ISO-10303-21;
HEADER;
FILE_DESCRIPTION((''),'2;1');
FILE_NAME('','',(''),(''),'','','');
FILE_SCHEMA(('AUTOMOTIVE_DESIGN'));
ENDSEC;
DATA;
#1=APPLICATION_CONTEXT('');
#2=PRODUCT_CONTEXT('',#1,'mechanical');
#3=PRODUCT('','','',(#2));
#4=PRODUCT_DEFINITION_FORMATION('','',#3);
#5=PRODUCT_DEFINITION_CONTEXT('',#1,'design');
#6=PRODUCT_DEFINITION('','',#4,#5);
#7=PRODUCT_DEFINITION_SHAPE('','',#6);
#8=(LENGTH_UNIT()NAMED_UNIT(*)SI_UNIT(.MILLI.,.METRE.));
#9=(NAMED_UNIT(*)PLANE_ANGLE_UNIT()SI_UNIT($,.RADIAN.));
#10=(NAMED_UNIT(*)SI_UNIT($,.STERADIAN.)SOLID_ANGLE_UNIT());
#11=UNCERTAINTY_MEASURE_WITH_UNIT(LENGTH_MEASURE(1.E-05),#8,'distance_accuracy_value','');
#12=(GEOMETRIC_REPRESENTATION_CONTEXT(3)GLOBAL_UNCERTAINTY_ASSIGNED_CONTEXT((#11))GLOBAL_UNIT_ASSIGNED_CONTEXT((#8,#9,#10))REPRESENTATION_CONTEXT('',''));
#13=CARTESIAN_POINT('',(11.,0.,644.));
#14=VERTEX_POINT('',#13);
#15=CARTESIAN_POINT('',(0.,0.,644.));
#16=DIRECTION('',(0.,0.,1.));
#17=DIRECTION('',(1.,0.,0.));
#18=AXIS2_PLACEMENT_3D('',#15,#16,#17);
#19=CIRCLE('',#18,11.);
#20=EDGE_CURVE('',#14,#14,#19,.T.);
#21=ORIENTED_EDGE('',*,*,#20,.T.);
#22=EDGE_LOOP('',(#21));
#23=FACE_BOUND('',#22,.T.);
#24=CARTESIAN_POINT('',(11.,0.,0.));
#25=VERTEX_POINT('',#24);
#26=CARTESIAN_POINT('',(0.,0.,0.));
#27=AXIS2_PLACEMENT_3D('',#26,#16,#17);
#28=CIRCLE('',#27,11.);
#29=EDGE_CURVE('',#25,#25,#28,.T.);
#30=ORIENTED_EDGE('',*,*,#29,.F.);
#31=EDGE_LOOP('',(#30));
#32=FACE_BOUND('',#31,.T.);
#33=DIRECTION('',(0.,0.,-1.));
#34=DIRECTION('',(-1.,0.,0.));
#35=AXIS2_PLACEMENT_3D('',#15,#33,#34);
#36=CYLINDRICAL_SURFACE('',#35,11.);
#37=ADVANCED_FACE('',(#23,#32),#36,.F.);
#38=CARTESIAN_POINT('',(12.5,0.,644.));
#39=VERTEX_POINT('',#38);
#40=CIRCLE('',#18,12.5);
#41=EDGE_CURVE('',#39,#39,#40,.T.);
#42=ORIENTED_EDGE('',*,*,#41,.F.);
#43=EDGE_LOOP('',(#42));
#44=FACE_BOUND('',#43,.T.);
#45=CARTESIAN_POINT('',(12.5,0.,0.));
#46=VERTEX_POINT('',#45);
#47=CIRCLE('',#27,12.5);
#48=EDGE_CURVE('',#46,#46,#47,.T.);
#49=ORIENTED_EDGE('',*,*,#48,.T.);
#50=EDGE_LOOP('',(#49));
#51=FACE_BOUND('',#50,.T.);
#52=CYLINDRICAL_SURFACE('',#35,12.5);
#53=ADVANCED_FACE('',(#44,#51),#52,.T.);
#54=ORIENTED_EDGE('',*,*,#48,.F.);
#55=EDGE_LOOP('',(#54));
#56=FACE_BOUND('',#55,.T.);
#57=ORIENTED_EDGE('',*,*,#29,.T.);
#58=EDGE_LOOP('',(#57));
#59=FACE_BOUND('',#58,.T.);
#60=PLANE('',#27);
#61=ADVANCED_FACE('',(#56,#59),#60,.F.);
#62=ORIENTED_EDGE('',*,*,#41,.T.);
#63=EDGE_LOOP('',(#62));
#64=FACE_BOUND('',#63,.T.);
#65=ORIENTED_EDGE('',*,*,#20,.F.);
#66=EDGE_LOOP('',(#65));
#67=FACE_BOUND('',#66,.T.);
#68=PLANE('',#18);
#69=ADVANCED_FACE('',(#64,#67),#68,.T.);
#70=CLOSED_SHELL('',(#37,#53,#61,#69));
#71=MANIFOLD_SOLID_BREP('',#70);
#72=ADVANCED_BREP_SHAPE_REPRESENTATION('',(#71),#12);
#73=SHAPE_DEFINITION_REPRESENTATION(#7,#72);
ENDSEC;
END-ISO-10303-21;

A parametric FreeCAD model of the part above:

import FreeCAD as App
import Part
import Sketcher
Q = App.Units.Quantity

doc = App.newDocument("Part")
body = doc.addObject("PartDesign::Body", "Body")

# Sketch on XY plane
sketch1 = body.newObject("Sketcher::SketchObject", "Sketch")
sketch1.AttachmentSupport = (doc.getObject("XY_Plane"), [""])
sketch1.MapMode = "FlatFace"
sketch1.addGeometry([
    Part.Circle(App.Vector(0, 0, 0), App.Vector(0, 0, 1), 12),
    Part.Circle(App.Vector(0, 0, 0), App.Vector(0, 0, 1), 11),
], False)
sketch1.addConstraint([
    Sketcher.Constraint("Coincident", 0, 3, -1, 1),
    Sketcher.Constraint("Coincident", 1, 3, -1, 1),
    Sketcher.Constraint("Diameter", 0, Q("25 mm")),
    Sketcher.Constraint("Diameter", 1, Q("22 mm")),
])
pad1 = body.newObject("PartDesign::Pad", "Pad")
pad1.Profile = sketch1
pad1.Length = 644

doc.recompute()
